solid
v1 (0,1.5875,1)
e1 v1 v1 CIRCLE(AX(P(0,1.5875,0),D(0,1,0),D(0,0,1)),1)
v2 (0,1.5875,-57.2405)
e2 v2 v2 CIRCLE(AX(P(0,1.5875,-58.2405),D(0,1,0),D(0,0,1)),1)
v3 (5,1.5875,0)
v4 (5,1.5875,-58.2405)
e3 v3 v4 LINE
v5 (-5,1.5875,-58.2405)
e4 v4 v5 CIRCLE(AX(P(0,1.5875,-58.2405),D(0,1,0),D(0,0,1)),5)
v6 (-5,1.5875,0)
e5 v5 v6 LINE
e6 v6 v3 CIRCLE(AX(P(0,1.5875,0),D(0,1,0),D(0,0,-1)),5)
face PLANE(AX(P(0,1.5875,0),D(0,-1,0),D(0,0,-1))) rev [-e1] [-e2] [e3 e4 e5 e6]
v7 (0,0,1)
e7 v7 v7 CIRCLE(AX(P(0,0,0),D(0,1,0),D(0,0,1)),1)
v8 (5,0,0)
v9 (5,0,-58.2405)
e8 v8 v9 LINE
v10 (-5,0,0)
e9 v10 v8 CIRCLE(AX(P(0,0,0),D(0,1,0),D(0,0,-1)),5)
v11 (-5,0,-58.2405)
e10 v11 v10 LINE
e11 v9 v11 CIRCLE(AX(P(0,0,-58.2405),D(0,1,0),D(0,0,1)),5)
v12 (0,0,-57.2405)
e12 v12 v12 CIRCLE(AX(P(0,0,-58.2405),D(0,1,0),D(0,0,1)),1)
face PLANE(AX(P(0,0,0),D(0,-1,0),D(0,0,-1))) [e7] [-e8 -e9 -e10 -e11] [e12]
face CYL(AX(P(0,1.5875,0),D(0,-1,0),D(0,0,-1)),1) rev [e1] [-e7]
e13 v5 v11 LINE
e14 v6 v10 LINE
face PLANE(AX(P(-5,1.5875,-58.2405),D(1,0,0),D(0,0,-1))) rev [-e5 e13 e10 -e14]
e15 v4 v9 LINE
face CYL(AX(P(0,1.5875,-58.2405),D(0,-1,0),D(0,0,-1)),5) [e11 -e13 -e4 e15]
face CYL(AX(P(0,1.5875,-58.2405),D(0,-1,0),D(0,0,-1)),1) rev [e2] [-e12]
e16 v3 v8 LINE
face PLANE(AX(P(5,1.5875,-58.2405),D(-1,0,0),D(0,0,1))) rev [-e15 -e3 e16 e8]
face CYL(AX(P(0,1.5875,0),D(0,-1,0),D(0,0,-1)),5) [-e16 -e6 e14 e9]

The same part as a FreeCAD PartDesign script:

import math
import FreeCAD as App
import Part
import Sketcher

doc = App.newDocument("Part")
params = doc.addObject("Spreadsheet::Sheet", "Params")
for row, (alias, value) in enumerate([
    ("sketch1_diameter", "2 mm"),
    ("sketch1_radius", "5 mm"),
    ("pad1_length", "1.5875 mm"),
], start=1):
    params.set(f"A{row}", alias)
    params.set(f"B{row}", "=" + value)
    params.setAlias(f"B{row}", alias)

body = doc.addObject("PartDesign::Body", "Body")

sketch1 = body.newObject("Sketcher::SketchObject", "Sketch")
sketch1.AttachmentSupport = (doc.getObject("XZ_Plane"), [""])
sketch1.MapMode = "FlatFace"
sketch1.addGeometry([
    Part.LineSegment(App.Vector(-5, -58.2, 0), App.Vector(-5, 0, 0)),
    Part.ArcOfCircle(Part.Circle(App.Vector(0, 0, 0), App.Vector(0, 0, 1), 5), math.radians(0), math.radians(180)),
    Part.LineSegment(App.Vector(5, 0, 0), App.Vector(5, -58.2, 0)),
    Part.ArcOfCircle(Part.Circle(App.Vector(0, -58.2, 0), App.Vector(0, 0, 1), 5), math.radians(180), math.radians(360)),
    Part.Circle(App.Vector(0, 0, 0), App.Vector(0, 0, 1), 1),
    Part.Circle(App.Vector(0, -58.2, 0), App.Vector(0, 0, 1), 1),
], False)
sketch1.addConstraint([
    Sketcher.Constraint("Tangent", 0, 2, 1, 2),
    Sketcher.Constraint("Tangent", 1, 1, 2, 1),
    Sketcher.Constraint("Tangent", 2, 2, 3, 2),
    Sketcher.Constraint("Tangent", 3, 1, 0, 1),
    Sketcher.Constraint("Vertical", 0),
    Sketcher.Constraint("Vertical", 2),
    Sketcher.Constraint("Coincident", 1, 3, -1, 1),
    Sketcher.Constraint("Coincident", 4, 3, -1, 1),
    Sketcher.Constraint("Coincident", 5, 3, 3, 3),
    Sketcher.Constraint("Equal", 4, 5),
    Sketcher.Constraint("Diameter", 4, 2.0),
    Sketcher.Constraint("Radius", 1, 5.0),
    Sketcher.Constraint("DistanceY", 0, 1, 0, 2, 58.2405),
])
sketch1.setExpression("Constraints[10]", "Params.sketch1_diameter")
sketch1.setExpression("Constraints[11]", "Params.sketch1_radius")
pad1 = body.newObject("PartDesign::Pad", "Pad")
pad1.Profile = sketch1
pad1.setExpression("Length", "Params.pad1_length")
pad1.Reversed = True

doc.recompute()
